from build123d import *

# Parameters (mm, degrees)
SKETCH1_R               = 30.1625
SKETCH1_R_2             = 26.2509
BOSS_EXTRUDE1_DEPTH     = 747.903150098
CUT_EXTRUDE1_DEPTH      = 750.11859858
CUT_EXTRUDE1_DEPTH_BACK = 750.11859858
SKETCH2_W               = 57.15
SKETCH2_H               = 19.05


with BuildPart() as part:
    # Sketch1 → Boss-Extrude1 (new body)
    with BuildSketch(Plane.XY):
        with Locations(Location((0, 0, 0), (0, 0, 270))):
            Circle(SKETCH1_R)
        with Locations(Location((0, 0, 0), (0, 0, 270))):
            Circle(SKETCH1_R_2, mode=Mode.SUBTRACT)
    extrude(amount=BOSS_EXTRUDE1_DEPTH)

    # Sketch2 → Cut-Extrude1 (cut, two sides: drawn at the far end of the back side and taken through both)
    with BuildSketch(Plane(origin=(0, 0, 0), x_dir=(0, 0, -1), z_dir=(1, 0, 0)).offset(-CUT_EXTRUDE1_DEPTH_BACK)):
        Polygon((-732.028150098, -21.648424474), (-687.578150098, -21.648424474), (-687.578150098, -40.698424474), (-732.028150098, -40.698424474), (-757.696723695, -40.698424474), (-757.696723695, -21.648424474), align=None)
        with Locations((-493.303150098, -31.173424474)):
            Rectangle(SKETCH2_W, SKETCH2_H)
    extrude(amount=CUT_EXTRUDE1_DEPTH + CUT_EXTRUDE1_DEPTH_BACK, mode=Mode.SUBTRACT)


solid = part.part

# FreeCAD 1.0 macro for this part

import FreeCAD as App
import Part
import Sketcher

V = App.Vector
Q = App.Units.Quantity


def add_polygon(sketch, points):
    """Adds a closed chain of lines whose ends are joined by coincident constraints."""
    first, n = sketch.GeometryCount, len(points)
    for a, b in zip(points, points[1:] + points[:1]):
        sketch.addGeometry(Part.LineSegment(App.Vector(*a, 0), App.Vector(*b, 0)), False)
    for i in range(n):
        sketch.addConstraint(Sketcher.Constraint("Coincident", first + i, 2, first + (i + 1) % n, 1))

doc = App.newDocument("Part")
body = doc.addObject("PartDesign::Body", "Body")

# Sketch on XY plane
sketch1 = doc.addObject("Sketcher::SketchObject", "Sketch")
body.addObject(sketch1)
sketch1.AttachmentSupport = (doc.XY_Plane, [""])
sketch1.MapMode = "FlatFace"
sketch1.addGeometry([
    Part.Circle(V(0, 0, 0), V(0, 0, 1), 30),
    Part.Circle(V(0, 0, 0), V(0, 0, 1), 26),
], False)
sketch1.addConstraint([
    Sketcher.Constraint("Coincident", 0, 3, -1, 1),
    Sketcher.Constraint("Coincident", 1, 3, -1, 1),
    Sketcher.Constraint("Diameter", 0, Q("2.375 in")),
    Sketcher.Constraint("Diameter", 1, Q("2.067 in")),
])
pad1 = doc.addObject("PartDesign::Pad", "Pad")
body.addObject(pad1)
pad1.Profile = sketch1
pad1.Length = 747.90315

# Sketch on YZ plane
sketch2 = doc.addObject("Sketcher::SketchObject", "Sketch001")
body.addObject(sketch2)
sketch2.AttachmentSupport = (doc.YZ_Plane, [""])
sketch2.MapMode = "FlatFace"
add_polygon(sketch2, [(-22, 688), (-22, 758), (-41, 758), (-41, 688)])  # lines 0-3
add_polygon(sketch2, [(-22, 522), (-41, 522), (-41, 465), (-22, 465)])  # lines 4-7
sketch2.addConstraint([
    Sketcher.Constraint("Vertical", 0),
    Sketcher.Constraint("Horizontal", 1),
    Sketcher.Constraint("Vertical", 2),
    Sketcher.Constraint("Horizontal", 3),
    Sketcher.Constraint("Horizontal", 4),
    Sketcher.Constraint("Vertical", 5),
    Sketcher.Constraint("Horizontal", 6),
    Sketcher.Constraint("Vertical", 7),
    Sketcher.Constraint("Vertical", 2, 2, 4, 2),
    Sketcher.Constraint("Vertical", 3, 2, 6, 2),
    Sketcher.Constraint("DistanceX", 1, 2, 1, 1, Q("0.75 in")),
    Sketcher.Constraint("DistanceY", 5, 2, 5, 1, Q("2.25 in")),
    Sketcher.Constraint("DistanceX", 0, 2, -1, 1, Q("0.8523002 in")),
    Sketcher.Constraint("DistanceY", 4, 2, 2, 2, 165.7),
    Sketcher.Constraint("DistanceY", 0, 1, 0, 2, 70.118574),
    Sketcher.Constraint("DistanceY", -1, 1, 2, 2, 687.57815),
])
pocket1 = doc.addObject("PartDesign::Pocket", "Pocket")
body.addObject(pocket1)
pocket1.Profile = sketch2
pocket1.Type = "ThroughAll"
pocket1.Midplane = True

doc.recompute()
